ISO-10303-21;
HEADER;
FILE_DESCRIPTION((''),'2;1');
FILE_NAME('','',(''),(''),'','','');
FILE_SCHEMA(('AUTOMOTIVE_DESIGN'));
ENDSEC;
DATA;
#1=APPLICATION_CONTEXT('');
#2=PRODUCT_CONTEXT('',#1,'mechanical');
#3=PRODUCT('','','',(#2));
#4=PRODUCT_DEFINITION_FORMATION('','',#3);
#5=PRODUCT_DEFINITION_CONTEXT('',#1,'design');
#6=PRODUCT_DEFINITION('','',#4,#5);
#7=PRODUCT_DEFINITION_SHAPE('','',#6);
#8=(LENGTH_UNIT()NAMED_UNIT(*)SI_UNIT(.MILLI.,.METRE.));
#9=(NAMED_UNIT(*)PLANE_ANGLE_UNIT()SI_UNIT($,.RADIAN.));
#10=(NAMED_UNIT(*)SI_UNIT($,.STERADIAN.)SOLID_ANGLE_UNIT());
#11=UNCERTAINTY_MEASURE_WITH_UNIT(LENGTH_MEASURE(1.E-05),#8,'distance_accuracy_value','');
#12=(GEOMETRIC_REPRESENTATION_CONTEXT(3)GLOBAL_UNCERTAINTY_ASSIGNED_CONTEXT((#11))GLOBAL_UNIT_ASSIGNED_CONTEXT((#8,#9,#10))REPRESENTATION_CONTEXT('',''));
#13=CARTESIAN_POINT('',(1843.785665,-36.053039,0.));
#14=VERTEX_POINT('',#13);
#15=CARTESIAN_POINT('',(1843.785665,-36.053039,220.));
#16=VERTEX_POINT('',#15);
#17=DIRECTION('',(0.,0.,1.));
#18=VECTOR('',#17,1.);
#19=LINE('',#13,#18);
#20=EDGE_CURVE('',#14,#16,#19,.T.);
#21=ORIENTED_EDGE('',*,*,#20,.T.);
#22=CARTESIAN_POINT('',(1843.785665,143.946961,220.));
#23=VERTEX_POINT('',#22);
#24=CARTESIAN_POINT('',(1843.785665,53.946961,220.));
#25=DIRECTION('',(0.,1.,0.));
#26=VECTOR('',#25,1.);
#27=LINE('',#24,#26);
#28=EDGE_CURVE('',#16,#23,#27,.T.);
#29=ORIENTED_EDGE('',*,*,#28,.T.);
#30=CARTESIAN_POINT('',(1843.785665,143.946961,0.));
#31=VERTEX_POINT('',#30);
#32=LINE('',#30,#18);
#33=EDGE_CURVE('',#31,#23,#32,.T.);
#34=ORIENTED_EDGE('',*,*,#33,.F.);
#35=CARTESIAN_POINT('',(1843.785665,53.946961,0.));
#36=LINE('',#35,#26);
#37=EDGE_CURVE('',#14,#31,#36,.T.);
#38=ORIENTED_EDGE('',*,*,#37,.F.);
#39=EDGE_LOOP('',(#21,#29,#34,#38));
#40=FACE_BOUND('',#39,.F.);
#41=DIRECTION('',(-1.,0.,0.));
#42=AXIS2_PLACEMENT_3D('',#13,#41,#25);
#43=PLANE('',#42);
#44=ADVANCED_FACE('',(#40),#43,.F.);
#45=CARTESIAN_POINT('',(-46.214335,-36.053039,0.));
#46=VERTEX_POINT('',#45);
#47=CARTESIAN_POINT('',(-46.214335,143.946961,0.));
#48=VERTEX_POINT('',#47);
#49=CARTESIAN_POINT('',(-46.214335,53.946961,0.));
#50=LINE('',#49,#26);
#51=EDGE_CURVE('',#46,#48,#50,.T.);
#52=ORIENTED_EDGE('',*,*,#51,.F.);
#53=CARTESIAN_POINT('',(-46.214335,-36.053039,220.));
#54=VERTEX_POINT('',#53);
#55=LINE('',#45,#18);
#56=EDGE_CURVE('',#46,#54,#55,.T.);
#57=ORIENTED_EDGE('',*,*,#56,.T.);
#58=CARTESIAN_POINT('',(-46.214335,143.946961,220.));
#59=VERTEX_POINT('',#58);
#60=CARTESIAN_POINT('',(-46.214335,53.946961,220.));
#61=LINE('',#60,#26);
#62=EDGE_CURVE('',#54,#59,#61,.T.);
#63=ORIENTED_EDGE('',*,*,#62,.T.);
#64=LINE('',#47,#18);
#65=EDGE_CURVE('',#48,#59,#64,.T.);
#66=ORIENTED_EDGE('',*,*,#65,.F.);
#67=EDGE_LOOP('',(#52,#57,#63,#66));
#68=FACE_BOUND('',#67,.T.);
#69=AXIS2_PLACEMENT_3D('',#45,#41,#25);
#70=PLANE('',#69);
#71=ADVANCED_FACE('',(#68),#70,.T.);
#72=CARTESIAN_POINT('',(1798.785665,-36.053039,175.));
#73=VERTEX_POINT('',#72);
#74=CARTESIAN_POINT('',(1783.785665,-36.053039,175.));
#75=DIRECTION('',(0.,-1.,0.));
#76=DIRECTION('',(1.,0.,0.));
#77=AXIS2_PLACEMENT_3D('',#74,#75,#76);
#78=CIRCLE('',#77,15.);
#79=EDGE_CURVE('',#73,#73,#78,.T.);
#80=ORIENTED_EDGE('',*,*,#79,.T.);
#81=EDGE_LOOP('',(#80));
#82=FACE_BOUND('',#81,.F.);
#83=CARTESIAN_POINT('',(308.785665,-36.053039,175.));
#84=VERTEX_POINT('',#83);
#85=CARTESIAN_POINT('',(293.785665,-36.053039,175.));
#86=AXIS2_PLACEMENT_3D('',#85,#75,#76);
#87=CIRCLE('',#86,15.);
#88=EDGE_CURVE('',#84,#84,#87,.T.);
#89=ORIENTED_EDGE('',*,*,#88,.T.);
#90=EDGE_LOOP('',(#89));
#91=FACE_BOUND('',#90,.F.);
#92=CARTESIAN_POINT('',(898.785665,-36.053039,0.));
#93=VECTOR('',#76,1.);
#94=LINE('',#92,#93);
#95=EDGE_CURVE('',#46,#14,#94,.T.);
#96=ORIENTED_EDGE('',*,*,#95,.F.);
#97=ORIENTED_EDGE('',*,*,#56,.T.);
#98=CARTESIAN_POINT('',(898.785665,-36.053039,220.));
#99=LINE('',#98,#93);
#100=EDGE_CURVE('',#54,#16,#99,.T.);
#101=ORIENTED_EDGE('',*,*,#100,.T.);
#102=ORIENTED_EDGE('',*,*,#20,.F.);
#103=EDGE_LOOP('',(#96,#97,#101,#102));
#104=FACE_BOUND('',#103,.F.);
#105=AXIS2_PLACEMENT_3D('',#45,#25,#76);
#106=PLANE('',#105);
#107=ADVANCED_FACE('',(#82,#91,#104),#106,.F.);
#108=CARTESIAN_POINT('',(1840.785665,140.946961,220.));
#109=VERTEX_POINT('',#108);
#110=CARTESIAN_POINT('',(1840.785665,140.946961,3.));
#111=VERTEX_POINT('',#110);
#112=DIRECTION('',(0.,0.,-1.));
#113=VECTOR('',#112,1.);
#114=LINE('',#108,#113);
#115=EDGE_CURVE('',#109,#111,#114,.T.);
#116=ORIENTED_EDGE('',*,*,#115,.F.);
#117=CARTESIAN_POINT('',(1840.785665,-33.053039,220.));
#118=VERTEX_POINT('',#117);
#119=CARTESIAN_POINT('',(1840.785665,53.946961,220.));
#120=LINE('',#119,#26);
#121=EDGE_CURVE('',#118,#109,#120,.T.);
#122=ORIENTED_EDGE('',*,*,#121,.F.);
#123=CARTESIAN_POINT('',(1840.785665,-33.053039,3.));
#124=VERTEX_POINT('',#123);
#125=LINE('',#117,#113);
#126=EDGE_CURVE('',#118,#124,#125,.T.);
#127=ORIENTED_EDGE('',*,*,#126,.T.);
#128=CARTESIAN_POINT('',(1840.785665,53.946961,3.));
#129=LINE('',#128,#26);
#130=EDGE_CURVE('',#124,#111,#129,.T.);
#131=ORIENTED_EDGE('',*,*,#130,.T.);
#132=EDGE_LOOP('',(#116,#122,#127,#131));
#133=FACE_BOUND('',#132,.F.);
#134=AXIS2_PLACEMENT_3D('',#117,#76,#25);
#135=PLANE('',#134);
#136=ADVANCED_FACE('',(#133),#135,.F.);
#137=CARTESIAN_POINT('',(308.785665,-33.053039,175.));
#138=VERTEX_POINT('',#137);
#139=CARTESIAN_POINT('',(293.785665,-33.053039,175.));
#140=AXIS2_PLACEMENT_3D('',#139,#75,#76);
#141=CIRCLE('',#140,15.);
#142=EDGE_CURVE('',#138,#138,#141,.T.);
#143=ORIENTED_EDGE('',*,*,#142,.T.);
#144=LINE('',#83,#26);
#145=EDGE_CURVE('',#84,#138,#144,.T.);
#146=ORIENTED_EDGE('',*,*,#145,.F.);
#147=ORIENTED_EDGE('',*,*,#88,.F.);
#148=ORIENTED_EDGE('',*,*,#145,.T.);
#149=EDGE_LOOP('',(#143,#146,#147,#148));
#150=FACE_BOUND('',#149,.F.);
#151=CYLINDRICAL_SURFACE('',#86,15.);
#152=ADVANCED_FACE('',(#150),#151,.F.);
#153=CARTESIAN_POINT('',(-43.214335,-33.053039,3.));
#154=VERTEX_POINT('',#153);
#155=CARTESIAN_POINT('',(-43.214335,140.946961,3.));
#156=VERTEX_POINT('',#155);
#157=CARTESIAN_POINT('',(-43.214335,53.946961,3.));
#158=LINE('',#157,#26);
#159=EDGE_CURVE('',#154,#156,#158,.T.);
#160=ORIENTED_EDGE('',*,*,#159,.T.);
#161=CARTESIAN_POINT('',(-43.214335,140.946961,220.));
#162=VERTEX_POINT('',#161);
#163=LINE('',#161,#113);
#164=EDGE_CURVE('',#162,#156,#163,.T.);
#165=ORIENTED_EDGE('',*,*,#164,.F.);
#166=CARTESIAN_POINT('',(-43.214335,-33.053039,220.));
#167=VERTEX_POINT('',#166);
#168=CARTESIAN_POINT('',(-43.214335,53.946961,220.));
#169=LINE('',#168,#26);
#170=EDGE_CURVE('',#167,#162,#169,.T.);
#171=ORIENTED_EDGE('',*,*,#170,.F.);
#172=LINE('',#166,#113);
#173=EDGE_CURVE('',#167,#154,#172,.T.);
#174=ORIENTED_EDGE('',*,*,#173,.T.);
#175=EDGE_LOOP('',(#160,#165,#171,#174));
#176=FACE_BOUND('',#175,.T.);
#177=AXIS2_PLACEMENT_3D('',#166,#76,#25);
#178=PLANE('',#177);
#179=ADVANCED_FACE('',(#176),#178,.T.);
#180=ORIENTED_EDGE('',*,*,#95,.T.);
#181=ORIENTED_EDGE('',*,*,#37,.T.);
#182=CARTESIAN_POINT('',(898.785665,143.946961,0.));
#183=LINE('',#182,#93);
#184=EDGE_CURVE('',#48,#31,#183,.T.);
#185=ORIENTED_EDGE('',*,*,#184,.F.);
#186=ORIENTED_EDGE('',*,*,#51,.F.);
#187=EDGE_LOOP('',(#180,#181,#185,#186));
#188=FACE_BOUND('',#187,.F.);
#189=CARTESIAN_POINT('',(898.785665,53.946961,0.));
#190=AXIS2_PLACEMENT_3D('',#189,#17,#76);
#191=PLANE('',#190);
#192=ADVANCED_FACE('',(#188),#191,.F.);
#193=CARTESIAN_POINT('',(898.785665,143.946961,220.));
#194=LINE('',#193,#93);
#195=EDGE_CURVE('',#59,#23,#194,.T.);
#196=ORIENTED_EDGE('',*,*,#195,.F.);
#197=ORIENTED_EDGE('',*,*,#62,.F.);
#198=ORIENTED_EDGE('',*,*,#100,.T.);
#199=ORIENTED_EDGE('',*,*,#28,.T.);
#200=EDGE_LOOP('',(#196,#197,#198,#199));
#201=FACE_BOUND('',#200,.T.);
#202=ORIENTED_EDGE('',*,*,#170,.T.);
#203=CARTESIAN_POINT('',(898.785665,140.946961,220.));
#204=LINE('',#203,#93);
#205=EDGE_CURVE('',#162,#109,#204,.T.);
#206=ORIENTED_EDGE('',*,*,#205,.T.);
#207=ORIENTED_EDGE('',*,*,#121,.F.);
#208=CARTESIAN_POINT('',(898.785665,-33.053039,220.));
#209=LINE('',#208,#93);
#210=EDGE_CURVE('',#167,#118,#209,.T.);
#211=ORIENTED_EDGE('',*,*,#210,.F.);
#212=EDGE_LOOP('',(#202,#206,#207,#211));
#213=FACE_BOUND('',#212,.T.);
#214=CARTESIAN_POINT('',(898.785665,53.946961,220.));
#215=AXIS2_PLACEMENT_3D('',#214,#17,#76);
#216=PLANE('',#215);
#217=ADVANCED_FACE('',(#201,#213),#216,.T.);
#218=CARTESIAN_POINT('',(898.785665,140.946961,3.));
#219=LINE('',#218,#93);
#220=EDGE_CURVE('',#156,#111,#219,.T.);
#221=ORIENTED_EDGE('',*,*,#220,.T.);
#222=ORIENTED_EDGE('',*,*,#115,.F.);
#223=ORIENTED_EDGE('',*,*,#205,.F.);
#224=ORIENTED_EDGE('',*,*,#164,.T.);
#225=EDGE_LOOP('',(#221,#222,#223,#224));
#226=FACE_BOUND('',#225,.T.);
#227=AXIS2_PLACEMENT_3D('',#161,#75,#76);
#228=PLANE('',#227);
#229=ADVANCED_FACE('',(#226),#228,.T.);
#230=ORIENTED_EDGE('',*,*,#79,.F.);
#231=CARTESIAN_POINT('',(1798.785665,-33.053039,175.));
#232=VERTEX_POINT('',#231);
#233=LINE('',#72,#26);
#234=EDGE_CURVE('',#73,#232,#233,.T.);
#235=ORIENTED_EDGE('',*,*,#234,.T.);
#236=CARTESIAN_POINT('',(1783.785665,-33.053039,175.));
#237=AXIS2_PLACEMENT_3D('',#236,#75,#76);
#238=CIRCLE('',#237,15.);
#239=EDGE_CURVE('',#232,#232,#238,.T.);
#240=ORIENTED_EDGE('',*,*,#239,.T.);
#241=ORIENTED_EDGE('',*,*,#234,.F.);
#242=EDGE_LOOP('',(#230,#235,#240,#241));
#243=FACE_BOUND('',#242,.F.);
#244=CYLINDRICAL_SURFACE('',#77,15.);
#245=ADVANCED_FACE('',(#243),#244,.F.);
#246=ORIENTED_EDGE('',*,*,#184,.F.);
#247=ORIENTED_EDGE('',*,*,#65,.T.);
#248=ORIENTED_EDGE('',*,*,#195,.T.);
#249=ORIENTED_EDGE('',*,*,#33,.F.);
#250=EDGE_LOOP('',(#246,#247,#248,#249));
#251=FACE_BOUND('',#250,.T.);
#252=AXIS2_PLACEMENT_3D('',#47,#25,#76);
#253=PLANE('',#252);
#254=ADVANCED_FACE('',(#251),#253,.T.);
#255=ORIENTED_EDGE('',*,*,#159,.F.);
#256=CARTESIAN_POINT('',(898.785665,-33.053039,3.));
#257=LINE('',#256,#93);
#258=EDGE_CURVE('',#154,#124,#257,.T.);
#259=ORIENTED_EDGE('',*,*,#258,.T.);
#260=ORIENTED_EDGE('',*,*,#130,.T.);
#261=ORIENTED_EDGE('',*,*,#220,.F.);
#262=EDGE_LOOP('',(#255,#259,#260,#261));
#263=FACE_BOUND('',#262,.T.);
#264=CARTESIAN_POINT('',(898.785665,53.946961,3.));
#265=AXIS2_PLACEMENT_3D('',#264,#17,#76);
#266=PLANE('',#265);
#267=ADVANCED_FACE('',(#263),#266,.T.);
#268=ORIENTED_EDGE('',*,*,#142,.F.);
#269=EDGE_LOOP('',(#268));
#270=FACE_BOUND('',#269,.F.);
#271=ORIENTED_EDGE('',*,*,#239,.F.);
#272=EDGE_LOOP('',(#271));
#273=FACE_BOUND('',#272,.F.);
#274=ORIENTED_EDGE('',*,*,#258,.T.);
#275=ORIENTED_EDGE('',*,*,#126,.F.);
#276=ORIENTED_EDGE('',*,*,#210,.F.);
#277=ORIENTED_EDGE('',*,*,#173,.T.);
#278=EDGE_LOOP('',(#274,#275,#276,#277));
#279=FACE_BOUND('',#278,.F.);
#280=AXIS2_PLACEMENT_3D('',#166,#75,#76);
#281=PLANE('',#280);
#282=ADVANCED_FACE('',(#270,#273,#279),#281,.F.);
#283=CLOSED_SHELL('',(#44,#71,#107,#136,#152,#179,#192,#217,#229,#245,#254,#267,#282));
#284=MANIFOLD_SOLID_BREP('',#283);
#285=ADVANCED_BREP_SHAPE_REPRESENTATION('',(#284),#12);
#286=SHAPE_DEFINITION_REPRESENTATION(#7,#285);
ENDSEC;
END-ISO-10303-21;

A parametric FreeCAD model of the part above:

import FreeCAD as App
import Part
import Sketcher
Q = App.Units.Quantity

doc = App.newDocument("Part")
body = doc.addObject("PartDesign::Body", "Body")

sketch1 = doc.addObject("Sketcher::SketchObject", "Sketch")
body.addObject(sketch1)
sketch1.AttachmentSupport = (doc.XY_Plane, [""])
sketch1.MapMode = "FlatFace"
sketch1.addGeometry(Part.LineSegment(App.Vector(-46.214335, 143.946961, 0), App.Vector(-46.214335, -36.053039, 0)), False)
sketch1.addGeometry(Part.LineSegment(App.Vector(-46.214335, -36.053039, 0), App.Vector(1843.785665, -36.053039, 0)), False)
sketch1.addGeometry(Part.LineSegment(App.Vector(1843.785665, -36.053039, 0), App.Vector(1843.785665, 143.946961, 0)), False)
sketch1.addGeometry(Part.LineSegment(App.Vector(1843.785665, 143.946961, 0), App.Vector(-46.214335, 143.946961, 0)), False)
sketch1.addConstraint(Sketcher.Constraint("Coincident", 0, 2, 1, 1))
sketch1.addConstraint(Sketcher.Constraint("Coincident", 1, 2, 2, 1))
sketch1.addConstraint(Sketcher.Constraint("Coincident", 2, 2, 3, 1))
sketch1.addConstraint(Sketcher.Constraint("Coincident", 3, 2, 0, 1))
sketch1.addConstraint(Sketcher.Constraint("Vertical", 0))
sketch1.addConstraint(Sketcher.Constraint("Horizontal", 1))
sketch1.addConstraint(Sketcher.Constraint("Vertical", 2))
sketch1.addConstraint(Sketcher.Constraint("Horizontal", 3))
sketch1.addConstraint(Sketcher.Constraint("DistanceX", 1, 1, 1, 2, Q("1890 mm")))
sketch1.addConstraint(Sketcher.Constraint("DistanceY", 0, 2, 0, 1, Q("180 mm")))
sketch1.addConstraint(Sketcher.Constraint("DistanceY", 0, 2, -1, 1, Q("36.053039 mm")))
sketch1.addConstraint(Sketcher.Constraint("DistanceX", 0, 2, -1, 1, Q("46.214335 mm")))
pad1 = doc.addObject("PartDesign::Pad", "Pad")
body.addObject(pad1)
pad1.Profile = sketch1
pad1.Length = 220

sketch2 = doc.addObject("Sketcher::SketchObject", "Sketch001")
body.addObject(sketch2)
sketch2.AttachmentSupport = (doc.XY_Plane, [""])
sketch2.MapMode = "FlatFace"
sketch2.AttachmentOffset = App.Placement(App.Vector(0, 0, 220), App.Rotation())
sketch2.addGeometry(Part.LineSegment(App.Vector(-43.214335, 140.946961, 0), App.Vector(-43.214335, -33.053039, 0)), False)
sketch2.addGeometry(Part.LineSegment(App.Vector(-43.214335, -33.053039, 0), App.Vector(1840.785665, -33.053039, 0)), False)
sketch2.addGeometry(Part.LineSegment(App.Vector(1840.785665, -33.053039, 0), App.Vector(1840.785665, 140.946961, 0)), False)
sketch2.addGeometry(Part.LineSegment(App.Vector(1840.785665, 140.946961, 0), App.Vector(-43.214335, 140.946961, 0)), False)
sketch2.addConstraint(Sketcher.Constraint("Coincident", 0, 2, 1, 1))
sketch2.addConstraint(Sketcher.Constraint("Coincident", 1, 2, 2, 1))
sketch2.addConstraint(Sketcher.Constraint("Coincident", 2, 2, 3, 1))
sketch2.addConstraint(Sketcher.Constraint("Coincident", 3, 2, 0, 1))
sketch2.addConstraint(Sketcher.Constraint("Vertical", 0))
sketch2.addConstraint(Sketcher.Constraint("Horizontal", 1))
sketch2.addConstraint(Sketcher.Constraint("Vertical", 2))
sketch2.addConstraint(Sketcher.Constraint("Horizontal", 3))
sketch2.addConstraint(Sketcher.Constraint("DistanceX", 1, 1, 1, 2, Q("1884 mm")))
sketch2.addConstraint(Sketcher.Constraint("DistanceY", 0, 2, 0, 1, Q("174 mm")))
sketch2.addConstraint(Sketcher.Constraint("DistanceY", 0, 2, -1, 1, Q("33.053039 mm")))
sketch2.addConstraint(Sketcher.Constraint("DistanceX", 0, 2, -1, 1, Q("43.214335 mm")))
pocket1 = doc.addObject("PartDesign::Pocket", "Pocket")
body.addObject(pocket1)
pocket1.Profile = sketch2
pocket1.Length = 217

sketch3 = doc.addObject("Sketcher::SketchObject", "Sketch002")
body.addObject(sketch3)
sketch3.AttachmentSupport = (doc.XZ_Plane, [""])
sketch3.MapMode = "FlatFace"
sketch3.AttachmentOffset = App.Placement(App.Vector(0, 0, 36.053039), App.Rotation())
sketch3.addGeometry(Part.Circle(App.Vector(293.785665, 175, 0), App.Vector(0, 0, 1), 15), False)
sketch3.addGeometry(Part.Circle(App.Vector(1783.785665, 175, 0), App.Vector(0, 0, 1), 15), False)
sketch3.addConstraint(Sketcher.Constraint("Equal", 0, 1))
sketch3.addConstraint(Sketcher.Constraint("Horizontal", 0, 3, 1, 3))
sketch3.addConstraint(Sketcher.Constraint("Diameter", 0, Q("30 mm")))
sketch3.addConstraint(Sketcher.Constraint("DistanceY", -1, 1, 0, 3, Q("175 mm")))
sketch3.addConstraint(Sketcher.Constraint("DistanceX", 0, 3, 1, 3, Q("1490 mm")))
sketch3.addConstraint(Sketcher.Constraint("DistanceX", -1, 1, 0, 3, Q("293.785665 mm")))
pocket2 = doc.addObject("PartDesign::Pocket", "Pocket001")
body.addObject(pocket2)
pocket2.Profile = sketch3
pocket2.Length = 3

doc.recompute()
